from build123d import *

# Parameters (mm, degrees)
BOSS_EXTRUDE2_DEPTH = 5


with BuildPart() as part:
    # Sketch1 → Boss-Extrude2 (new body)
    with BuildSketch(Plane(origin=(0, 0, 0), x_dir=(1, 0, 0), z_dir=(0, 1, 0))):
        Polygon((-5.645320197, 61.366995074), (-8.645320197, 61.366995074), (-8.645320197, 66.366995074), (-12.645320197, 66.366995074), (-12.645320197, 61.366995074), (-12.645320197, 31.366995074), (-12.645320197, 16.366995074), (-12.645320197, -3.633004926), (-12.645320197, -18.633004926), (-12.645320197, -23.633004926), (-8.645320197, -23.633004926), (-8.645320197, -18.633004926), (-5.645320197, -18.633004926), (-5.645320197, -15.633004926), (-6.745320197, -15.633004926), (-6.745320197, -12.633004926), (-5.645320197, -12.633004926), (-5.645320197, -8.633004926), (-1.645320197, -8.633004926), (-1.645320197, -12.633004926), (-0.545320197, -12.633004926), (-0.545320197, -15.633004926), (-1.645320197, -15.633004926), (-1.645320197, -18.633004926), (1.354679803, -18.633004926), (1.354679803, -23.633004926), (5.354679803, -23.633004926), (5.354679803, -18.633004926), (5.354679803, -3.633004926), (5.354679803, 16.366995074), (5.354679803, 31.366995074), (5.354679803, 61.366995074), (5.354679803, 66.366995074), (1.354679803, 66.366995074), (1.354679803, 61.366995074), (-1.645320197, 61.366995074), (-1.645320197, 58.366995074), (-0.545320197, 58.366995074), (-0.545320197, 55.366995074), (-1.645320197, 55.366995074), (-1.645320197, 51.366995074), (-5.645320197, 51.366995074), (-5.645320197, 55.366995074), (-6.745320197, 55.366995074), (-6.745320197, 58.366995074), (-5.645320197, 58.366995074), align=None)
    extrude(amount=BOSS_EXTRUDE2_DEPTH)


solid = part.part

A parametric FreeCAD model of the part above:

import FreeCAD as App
import Part
import Sketcher
Q = App.Units.Quantity


def add_polygon(sketch, points):
    """Adds a closed chain of lines whose ends are joined by coincident constraints."""
    first, n = sketch.GeometryCount, len(points)
    for a, b in zip(points, points[1:] + points[:1]):
        sketch.addGeometry(Part.LineSegment(App.Vector(*a, 0), App.Vector(*b, 0)), False)
    for i in range(n):
        sketch.addConstraint(Sketcher.Constraint("Coincident", first + i, 2, first + (i + 1) % n, 1))

doc = App.newDocument("Part")
params = doc.addObject("Spreadsheet::Sheet", "Params")
for row, (alias, value) in enumerate([
    ("sketch1_width", "3 mm"),
    ("sketch1_width2", "4 mm"),
    ("sketch1_height", "5 mm"),
    ("sketch1_height2", "90 mm"),
    ("sketch1_width3", "1.1 mm"),
    ("pad1_length", "5 mm"),
], start=1):
    params.set(f"A{row}", alias)
    params.set(f"B{row}", "=" + value)
    params.setAlias(f"B{row}", alias)

body = doc.addObject("PartDesign::Body", "Body")

sketch1 = body.newObject("Sketcher::SketchObject", "Sketch")
sketch1.AttachmentSupport = (doc.getObject("XZ_Plane"), [""])
sketch1.MapMode = "FlatFace"
add_polygon(sketch1, [(-5.6, -61.4), (-8.6, -61.4), (-8.6, -66.4), (-12.6, -66.4), (-12.6, 23.6), (-8.6, 23.6), (-8.6, 18.6), (-5.6, 18.6), (-5.6, 15.6), (-6.7, 15.6), (-6.7, 12.6), (-5.6, 12.6), (-5.6, 8.6), (-1.6, 8.6), (-1.6, 12.6), (-0.5, 12.6), (-0.5, 15.6), (-1.6, 15.6), (-1.6, 18.6), (1.4, 18.6), (1.4, 23.6), (5.4, 23.6), (5.4, -66.4), (1.4, -66.4), (1.4, -61.4), (-1.6, -61.4), (-1.6, -58.4), (-0.5, -58.4), (-0.5, -55.4), (-1.6, -55.4), (-1.6, -51.4), (-5.6, -51.4), (-5.6, -55.4), (-6.7, -55.4), (-6.7, -58.4), (-5.6, -58.4)])
sketch1.addConstraint([
    Sketcher.Constraint("Horizontal", 0),
    Sketcher.Constraint("Vertical", 1),
    Sketcher.Constraint("Horizontal", 2),
    Sketcher.Constraint("Vertical", 3),
    Sketcher.Constraint("Horizontal", 4),
    Sketcher.Constraint("Vertical", 5),
    Sketcher.Constraint("Horizontal", 6),
    Sketcher.Constraint("Vertical", 7),
    Sketcher.Constraint("Horizontal", 8),
    Sketcher.Constraint("Vertical", 9),
    Sketcher.Constraint("Horizontal", 10),
    Sketcher.Constraint("Vertical", 11),
    Sketcher.Constraint("Horizontal", 12),
    Sketcher.Constraint("Vertical", 13),
    Sketcher.Constraint("Horizontal", 14),
    Sketcher.Constraint("Vertical", 15),
    Sketcher.Constraint("Horizontal", 16),
    Sketcher.Constraint("Vertical", 17),
    Sketcher.Constraint("Horizontal", 18),
    Sketcher.Constraint("Vertical", 19),
    Sketcher.Constraint("Horizontal", 20),
    Sketcher.Constraint("Vertical", 21),
    Sketcher.Constraint("Horizontal", 22),
    Sketcher.Constraint("Vertical", 23),
    Sketcher.Constraint("Horizontal", 24),
    Sketcher.Constraint("Vertical", 25),
    Sketcher.Constraint("Horizontal", 26),
    Sketcher.Constraint("Vertical", 27),
    Sketcher.Constraint("Horizontal", 28),
    Sketcher.Constraint("Vertical", 29),
    Sketcher.Constraint("Horizontal", 30),
    Sketcher.Constraint("Vertical", 31),
    Sketcher.Constraint("Horizontal", 32),
    Sketcher.Constraint("Vertical", 33),
    Sketcher.Constraint("Horizontal", 34),
    Sketcher.Constraint("Vertical", 35),
    Sketcher.Constraint("Horizontal", 10, 2, 13, 2),
    Sketcher.Constraint("Horizontal", 8, 2, 15, 2),
    Sketcher.Constraint("Horizontal", 6, 2, 17, 2),
    Sketcher.Constraint("Horizontal", 4, 2, 19, 2),
    Sketcher.Constraint("Horizontal", 2, 2, 21, 2),
    Sketcher.Constraint("Horizontal", 0, 2, 23, 2),
    Sketcher.Constraint("Horizontal", 28, 2, 31, 2),
    Sketcher.Constraint("Horizontal", 26, 2, 33, 2),
    Sketcher.Constraint("Vertical", 1, 2, 4, 2),
    Sketcher.Constraint("Vertical", 7, 2, 10, 2),
    Sketcher.Constraint("Vertical", 13, 2, 16, 2),
    Sketcher.Constraint("Vertical", 19, 2, 22, 2),
    Sketcher.Constraint("Vertical", 17, 2, 24, 2),
    Sketcher.Constraint("Vertical", 15, 2, 26, 2),
    Sketcher.Constraint("Vertical", 25, 2, 28, 2),
    Sketcher.Constraint("Vertical", 11, 2, 30, 2),
    Sketcher.Constraint("Vertical", 9, 2, 32, 2),
    Sketcher.Constraint("Vertical", 31, 2, 34, 2),
    Sketcher.Constraint("Equal", 4, 12),
    Sketcher.Constraint("Equal", 10, 14),
    Sketcher.Constraint("Equal", 6, 18),
    Sketcher.Constraint("Equal", 12, 20),
    Sketcher.Constraint("Equal", 1, 5),
    Sketcher.Constraint("Equal", 24, 7),
    Sketcher.Constraint("Equal", 7, 9),
    Sketcher.Constraint("Equal", 30, 11),
    Sketcher.Constraint("Equal", 17, 25),
    Sketcher.Constraint("Equal", 25, 27),
    Sketcher.Constraint("Equal", 13, 29),
    Sketcher.Constraint("DistanceX", 0, 2, 0, 1, Q("3 mm")),
    Sketcher.Constraint("DistanceX", 2, 2, 2, 1, Q("4 mm")),
    Sketcher.Constraint("DistanceY", 1, 2, 1, 1, Q("5 mm")),
    Sketcher.Constraint("DistanceY", 3, 1, 3, 2, Q("90 mm")),
    Sketcher.Constraint("DistanceX", 8, 2, 8, 1, Q("1.1 mm")),
    Sketcher.Constraint("DistanceX", 0, 2, -1, 1, Q("8.64532 mm")),
    Sketcher.Constraint("DistanceY", 0, 2, -1, 1, Q("61.366995 mm")),
])
sketch1.setExpression("Constraints[101]", "Params.sketch1_width")
sketch1.setExpression("Constraints[102]", "Params.sketch1_width2")
sketch1.setExpression("Constraints[103]", "Params.sketch1_height")
sketch1.setExpression("Constraints[104]", "Params.sketch1_height2")
sketch1.setExpression("Constraints[105]", "Params.sketch1_width3")
pad1 = body.newObject("PartDesign::Pad", "Pad")
pad1.Profile = sketch1
pad1.setExpression("Length", "Params.pad1_length")
pad1.Reversed = True

doc.recompute()
